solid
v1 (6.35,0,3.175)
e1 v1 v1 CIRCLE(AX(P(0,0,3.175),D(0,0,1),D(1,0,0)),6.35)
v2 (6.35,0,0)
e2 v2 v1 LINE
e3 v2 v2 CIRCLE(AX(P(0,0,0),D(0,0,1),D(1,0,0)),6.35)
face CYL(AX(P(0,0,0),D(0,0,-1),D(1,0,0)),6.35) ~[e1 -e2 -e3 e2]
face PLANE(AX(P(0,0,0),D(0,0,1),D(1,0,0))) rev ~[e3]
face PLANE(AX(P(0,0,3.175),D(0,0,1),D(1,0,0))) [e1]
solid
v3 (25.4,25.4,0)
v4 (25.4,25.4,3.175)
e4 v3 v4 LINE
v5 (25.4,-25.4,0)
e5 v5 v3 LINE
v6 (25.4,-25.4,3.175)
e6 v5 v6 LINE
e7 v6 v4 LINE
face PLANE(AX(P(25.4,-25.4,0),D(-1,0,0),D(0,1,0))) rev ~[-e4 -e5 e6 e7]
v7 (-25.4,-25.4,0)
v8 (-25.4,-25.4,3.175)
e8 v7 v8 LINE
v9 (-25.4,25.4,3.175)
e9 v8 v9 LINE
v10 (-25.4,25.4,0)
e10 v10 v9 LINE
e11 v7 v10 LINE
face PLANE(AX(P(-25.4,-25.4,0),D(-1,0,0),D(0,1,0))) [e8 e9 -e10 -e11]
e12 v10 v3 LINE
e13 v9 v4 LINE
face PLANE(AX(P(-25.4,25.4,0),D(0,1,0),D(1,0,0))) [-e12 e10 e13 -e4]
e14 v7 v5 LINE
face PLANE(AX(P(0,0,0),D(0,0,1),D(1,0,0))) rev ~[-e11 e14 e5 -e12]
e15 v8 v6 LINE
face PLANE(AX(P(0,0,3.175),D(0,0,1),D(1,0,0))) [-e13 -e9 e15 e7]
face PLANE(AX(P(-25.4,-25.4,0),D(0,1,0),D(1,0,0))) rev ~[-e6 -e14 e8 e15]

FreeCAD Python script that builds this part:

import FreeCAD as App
import Part
import Sketcher
from FreeCAD import Vector
Q = App.Units.Quantity


def add_polygon(sketch, points):
    """Adds a closed chain of lines whose ends are joined by coincident constraints."""
    first, n = sketch.GeometryCount, len(points)
    for a, b in zip(points, points[1:] + points[:1]):
        sketch.addGeometry(Part.LineSegment(App.Vector(*a, 0), App.Vector(*b, 0)), False)
    for i in range(n):
        sketch.addConstraint(Sketcher.Constraint("Coincident", first + i, 2, first + (i + 1) % n, 1))

doc = App.newDocument("Part")
body = doc.addObject("PartDesign::Body", "Body")

sketch1 = body.newObject("Sketcher::SketchObject", "Sketch")
sketch1.AttachmentSupport = (doc.getObject("XY_Plane"), [""])
sketch1.MapMode = "FlatFace"
add_polygon(sketch1, [(-25, 25), (-25, -25), (25, -25), (25, 25)])
sketch1.addConstraint([
    Sketcher.Constraint("Vertical", 0),
    Sketcher.Constraint("Horizontal", 1),
    Sketcher.Constraint("Vertical", 2),
    Sketcher.Constraint("Horizontal", 3),
    Sketcher.Constraint("Symmetric", 0, 2, 2, 2, -1, 1),
    Sketcher.Constraint("Equal", 3, 0),
    Sketcher.Constraint("DistanceX", 1, 1, 1, 2, Q("2 in")),
])
pad1 = body.newObject("PartDesign::Pad", "Pad")
pad1.Profile = sketch1
pad1.Length = Q("0.125 in")
body2 = doc.addObject("PartDesign::Body", "Body001")

sketch2 = body2.newObject("Sketcher::SketchObject", "Sketch001")
sketch2.AttachmentSupport = (doc.getObject("XY_Plane001"), [""])
sketch2.MapMode = "FlatFace"
sketch2.addGeometry(Part.Circle(Vector(0, 0, 0), Vector(0, 0, 1), 6), False)
sketch2.addConstraint([
    Sketcher.Constraint("Coincident", 0, 3, -1, 1),
    Sketcher.Constraint("Diameter", 0, Q("0.5 in")),
])
pad2 = body2.newObject("PartDesign::Pad", "Pad001")
pad2.Profile = sketch2
pad2.Length = Q("0.125 in")

doc.recompute()
